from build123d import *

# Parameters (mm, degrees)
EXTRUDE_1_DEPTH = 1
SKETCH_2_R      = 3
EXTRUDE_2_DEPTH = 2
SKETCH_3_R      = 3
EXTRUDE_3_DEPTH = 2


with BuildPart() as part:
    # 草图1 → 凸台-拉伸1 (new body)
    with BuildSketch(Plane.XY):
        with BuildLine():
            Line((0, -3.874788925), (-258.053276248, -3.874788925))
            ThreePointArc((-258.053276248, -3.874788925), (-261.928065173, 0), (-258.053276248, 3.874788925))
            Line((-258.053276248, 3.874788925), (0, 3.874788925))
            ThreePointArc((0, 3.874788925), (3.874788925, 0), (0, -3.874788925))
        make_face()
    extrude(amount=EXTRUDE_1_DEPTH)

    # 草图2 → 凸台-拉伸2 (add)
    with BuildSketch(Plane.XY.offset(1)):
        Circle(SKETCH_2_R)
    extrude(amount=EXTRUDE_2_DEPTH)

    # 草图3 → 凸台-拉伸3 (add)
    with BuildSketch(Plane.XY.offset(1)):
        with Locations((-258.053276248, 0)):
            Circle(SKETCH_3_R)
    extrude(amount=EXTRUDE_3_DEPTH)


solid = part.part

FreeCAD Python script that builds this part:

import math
import FreeCAD as App
import Part
import Sketcher

doc = App.newDocument("Part")
body = doc.addObject("PartDesign::Body", "Body")

sketch1 = doc.addObject("Sketcher::SketchObject", "Sketch")
body.addObject(sketch1)
sketch1.AttachmentSupport = (doc.XY_Plane, [""])
sketch1.MapMode = "FlatFace"
sketch1.addGeometry([
    Part.LineSegment(App.Vector(-258.053276, -3.874789, 0), App.Vector(0, -3.874789, 0)),
    Part.ArcOfCircle(Part.Circle(App.Vector(0, 0, 0), App.Vector(0, 0, 1), 3.874789), math.radians(-90), math.radians(90)),
    Part.LineSegment(App.Vector(0, 3.874789, 0), App.Vector(-258.053276, 3.874789, 0)),
    Part.ArcOfCircle(Part.Circle(App.Vector(-258.053276, 0, 0), App.Vector(0, 0, 1), 3.874789), math.radians(90), math.radians(270)),
], False)
sketch1.addConstraint([
    Sketcher.Constraint("Tangent", 0, 2, 1, 1),
    Sketcher.Constraint("Tangent", 1, 2, 2, 1),
    Sketcher.Constraint("Tangent", 2, 2, 3, 1),
    Sketcher.Constraint("Tangent", 3, 2, 0, 1),
    Sketcher.Constraint("Horizontal", 0),
    Sketcher.Constraint("Horizontal", 2),
    Sketcher.Constraint("Coincident", 1, 3, -1, 1),
    Sketcher.Constraint("Radius", 1, 3.874789),
    Sketcher.Constraint("DistanceX", 0, 1, 0, 2, 258.053276),
])
pad1 = doc.addObject("PartDesign::Pad", "Pad")
body.addObject(pad1)
pad1.Profile = sketch1
pad1.Length = 1

sketch2 = doc.addObject("Sketcher::SketchObject", "Sketch001")
body.addObject(sketch2)
sketch2.AttachmentSupport = (doc.XY_Plane, [""])
sketch2.MapMode = "FlatFace"
sketch2.AttachmentOffset = App.Placement(App.Vector(0, 0, 1), App.Rotation())
sketch2.addGeometry(Part.Circle(App.Vector(0, 0, 0), App.Vector(0, 0, 1), 3), False)
sketch2.addConstraint([
    Sketcher.Constraint("Coincident", 0, 3, -1, 1),
    Sketcher.Constraint("Diameter", 0, 6.0),
])
pad2 = doc.addObject("PartDesign::Pad", "Pad001")
body.addObject(pad2)
pad2.Profile = sketch2
pad2.Length = 2

sketch3 = doc.addObject("Sketcher::SketchObject", "Sketch002")
body.addObject(sketch3)
sketch3.AttachmentSupport = (doc.XY_Plane, [""])
sketch3.MapMode = "FlatFace"
sketch3.AttachmentOffset = App.Placement(App.Vector(0, 0, 1), App.Rotation())
sketch3.addGeometry(Part.Circle(App.Vector(-258.053276, 0, 0), App.Vector(0, 0, 1), 3), False)
sketch3.addConstraint([
    Sketcher.Constraint("PointOnObject", 0, 3, -1),
    Sketcher.Constraint("Diameter", 0, 6.0),
    Sketcher.Constraint("DistanceX", 0, 3, -1, 1, 258.053276),
])
pad3 = doc.addObject("PartDesign::Pad", "Pad002")
body.addObject(pad3)
pad3.Profile = sketch3
pad3.Length = 2

doc.recompute()
